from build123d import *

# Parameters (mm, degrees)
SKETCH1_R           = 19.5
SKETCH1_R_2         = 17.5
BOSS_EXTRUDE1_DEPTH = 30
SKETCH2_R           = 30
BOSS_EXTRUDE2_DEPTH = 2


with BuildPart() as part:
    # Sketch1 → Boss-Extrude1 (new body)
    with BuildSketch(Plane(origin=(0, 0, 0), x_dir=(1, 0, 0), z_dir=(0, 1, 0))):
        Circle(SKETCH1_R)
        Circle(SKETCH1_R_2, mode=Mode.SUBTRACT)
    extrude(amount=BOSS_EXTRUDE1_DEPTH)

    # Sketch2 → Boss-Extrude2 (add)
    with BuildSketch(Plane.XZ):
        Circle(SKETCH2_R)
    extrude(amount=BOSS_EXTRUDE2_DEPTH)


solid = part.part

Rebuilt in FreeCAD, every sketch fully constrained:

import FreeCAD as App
import Part
import Sketcher

V = App.Vector

doc = App.newDocument("Part")
body = doc.addObject("PartDesign::Body", "Body")

# Sketch on XZ plane
sketch1 = doc.addObject("Sketcher::SketchObject", "Sketch")
body.addObject(sketch1)
sketch1.AttachmentSupport = (doc.XZ_Plane, [""])
sketch1.MapMode = "FlatFace"
sketch1.addGeometry([
    Part.Circle(V(0, 0, 0), V(0, 0, 1), 20),
    Part.Circle(V(0, 0, 0), V(0, 0, 1), 18),
], False)
sketch1.addConstraint([
    Sketcher.Constraint("Coincident", 0, 3, -1, 1),
    Sketcher.Constraint("Coincident", 1, 3, -1, 1),
    Sketcher.Constraint("Diameter", 0, 39.0),
    Sketcher.Constraint("Diameter", 1, 35.0),
])
pad1 = doc.addObject("PartDesign::Pad", "Pad")
body.addObject(pad1)
pad1.Profile = sketch1
pad1.Length = 30
pad1.Reversed = True

# Sketch on XZ plane
sketch2 = doc.addObject("Sketcher::SketchObject", "Sketch001")
body.addObject(sketch2)
sketch2.AttachmentSupport = (doc.XZ_Plane, [""])
sketch2.MapMode = "FlatFace"
sketch2.addGeometry(Part.Circle(V(0, 0, 0), V(0, 0, 1), 30), False)
sketch2.addConstraint([
    Sketcher.Constraint("Coincident", 0, 3, -1, 1),
    Sketcher.Constraint("Diameter", 0, 60.0),
])
pad2 = doc.addObject("PartDesign::Pad", "Pad001")
body.addObject(pad2)
pad2.Profile = sketch2
pad2.Length = 2

doc.recompute()
